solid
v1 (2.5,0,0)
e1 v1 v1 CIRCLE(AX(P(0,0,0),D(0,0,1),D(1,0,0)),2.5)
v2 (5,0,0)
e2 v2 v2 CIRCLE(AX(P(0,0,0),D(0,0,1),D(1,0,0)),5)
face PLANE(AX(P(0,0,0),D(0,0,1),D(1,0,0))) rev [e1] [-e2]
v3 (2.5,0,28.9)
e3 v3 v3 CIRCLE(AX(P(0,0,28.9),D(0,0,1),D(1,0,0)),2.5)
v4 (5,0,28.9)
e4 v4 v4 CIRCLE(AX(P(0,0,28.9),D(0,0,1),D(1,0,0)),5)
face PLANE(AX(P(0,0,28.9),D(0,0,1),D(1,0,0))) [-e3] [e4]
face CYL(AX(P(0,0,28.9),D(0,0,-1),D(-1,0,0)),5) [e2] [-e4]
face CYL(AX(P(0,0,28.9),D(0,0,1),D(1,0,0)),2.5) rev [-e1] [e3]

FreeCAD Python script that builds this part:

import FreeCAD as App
import Part
import Sketcher
from FreeCAD import Vector

doc = App.newDocument("Part")
body = doc.addObject("PartDesign::Body", "Body")

sketch1 = body.newObject("Sketcher::SketchObject", "Sketch")
sketch1.AttachmentSupport = (doc.getObject("XY_Plane"), [""])
sketch1.MapMode = "FlatFace"
sketch1.addGeometry(Part.Circle(Vector(0, 0, 0), Vector(0, 0, 1), 5), False)
sketch1.addConstraint(Sketcher.Constraint("Coincident", 0, 3, -1, 1))
sketch1.addConstraint(Sketcher.Constraint("Diameter", 0, 10.0))
pad1 = body.newObject("PartDesign::Pad", "Pad")
pad1.Profile = sketch1
pad1.Length = 28.9

sketch2 = body.newObject("Sketcher::SketchObject", "Sketch001")
sketch2.AttachmentSupport = (doc.getObject("XY_Plane"), [""])
sketch2.MapMode = "FlatFace"
sketch2.AttachmentOffset = App.Placement(Vector(0, 0, 28.9), App.Rotation())
sketch2.addGeometry(Part.Circle(Vector(0, 0, 0), Vector(0, 0, 1), 2.5), False)
sketch2.addConstraint(Sketcher.Constraint("Coincident", 0, 3, -1, 1))
sketch2.addConstraint(Sketcher.Constraint("Diameter", 0, 5.0))
doc.recompute()
hole = body.newObject("PartDesign::Hole", "Hole")
hole.Profile = sketch2
hole.ThreadType = "None"
hole.Diameter = 5
hole.DepthType = "Dimension"
hole.Depth = 28.9
hole.DrillPoint = "Flat"

doc.recompute()
